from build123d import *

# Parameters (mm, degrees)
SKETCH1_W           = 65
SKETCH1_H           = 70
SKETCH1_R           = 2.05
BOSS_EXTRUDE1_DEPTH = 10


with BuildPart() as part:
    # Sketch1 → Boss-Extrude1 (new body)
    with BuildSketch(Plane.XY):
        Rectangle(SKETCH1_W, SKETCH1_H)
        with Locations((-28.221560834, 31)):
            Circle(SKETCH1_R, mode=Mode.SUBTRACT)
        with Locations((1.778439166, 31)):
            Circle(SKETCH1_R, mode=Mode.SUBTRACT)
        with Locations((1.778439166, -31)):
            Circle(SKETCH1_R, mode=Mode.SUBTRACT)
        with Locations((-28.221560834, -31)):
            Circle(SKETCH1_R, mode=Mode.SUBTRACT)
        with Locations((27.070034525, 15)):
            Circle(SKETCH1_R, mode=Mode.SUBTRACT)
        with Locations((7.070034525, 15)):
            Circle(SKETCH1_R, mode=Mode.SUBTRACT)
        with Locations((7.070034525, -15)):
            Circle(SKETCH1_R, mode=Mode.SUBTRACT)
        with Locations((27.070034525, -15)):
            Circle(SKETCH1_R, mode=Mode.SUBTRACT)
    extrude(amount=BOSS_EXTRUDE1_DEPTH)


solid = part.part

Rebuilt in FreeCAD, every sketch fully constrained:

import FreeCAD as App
import Part
import Sketcher

doc = App.newDocument("Part")
body = doc.addObject("PartDesign::Body", "Body")

sketch1 = doc.addObject("Sketcher::SketchObject", "Sketch")
body.addObject(sketch1)
sketch1.AttachmentSupport = (doc.XY_Plane, [""])
sketch1.MapMode = "FlatFace"
sketch1.addGeometry(Part.LineSegment(App.Vector(-32.5, 35, 0), App.Vector(-32.5, -35, 0)), False)
sketch1.addGeometry(Part.LineSegment(App.Vector(-32.5, -35, 0), App.Vector(32.5, -35, 0)), False)
sketch1.addGeometry(Part.LineSegment(App.Vector(32.5, -35, 0), App.Vector(32.5, 35, 0)), False)
sketch1.addGeometry(Part.LineSegment(App.Vector(32.5, 35, 0), App.Vector(-32.5, 35, 0)), False)
sketch1.addGeometry(Part.Circle(App.Vector(-28.2, -31, 0), App.Vector(0, 0, 1), 2), False)
sketch1.addGeometry(Part.Circle(App.Vector(1.8, -31, 0), App.Vector(0, 0, 1), 2), False)
sketch1.addGeometry(Part.Circle(App.Vector(7.1, -15, 0), App.Vector(0, 0, 1), 2), False)
sketch1.addGeometry(Part.Circle(App.Vector(27.1, -15, 0), App.Vector(0, 0, 1), 2), False)
sketch1.addGeometry(Part.Circle(App.Vector(-28.2, 31, 0), App.Vector(0, 0, 1), 2), False)
sketch1.addGeometry(Part.Circle(App.Vector(7.1, 15, 0), App.Vector(0, 0, 1), 2), False)
sketch1.addGeometry(Part.Circle(App.Vector(27.1, 15, 0), App.Vector(0, 0, 1), 2), False)
sketch1.addGeometry(Part.Circle(App.Vector(1.8, 31, 0), App.Vector(0, 0, 1), 2), False)
sketch1.addConstraint(Sketcher.Constraint("Coincident", 0, 2, 1, 1))
sketch1.addConstraint(Sketcher.Constraint("Coincident", 1, 2, 2, 1))
sketch1.addConstraint(Sketcher.Constraint("Coincident", 2, 2, 3, 1))
sketch1.addConstraint(Sketcher.Constraint("Coincident", 3, 2, 0, 1))
sketch1.addConstraint(Sketcher.Constraint("Vertical", 0))
sketch1.addConstraint(Sketcher.Constraint("Horizontal", 1))
sketch1.addConstraint(Sketcher.Constraint("Vertical", 2))
sketch1.addConstraint(Sketcher.Constraint("Horizontal", 3))
sketch1.addConstraint(Sketcher.Constraint("Equal", 4, 5))
sketch1.addConstraint(Sketcher.Constraint("Equal", 5, 6))
sketch1.addConstraint(Sketcher.Constraint("Equal", 6, 7))
sketch1.addConstraint(Sketcher.Constraint("Equal", 7, 8))
sketch1.addConstraint(Sketcher.Constraint("Equal", 8, 9))
sketch1.addConstraint(Sketcher.Constraint("Equal", 9, 10))
sketch1.addConstraint(Sketcher.Constraint("Equal", 10, 11))
sketch1.addConstraint(Sketcher.Constraint("Symmetric", 0, 2, 2, 2, -1, 1))
sketch1.addConstraint(Sketcher.Constraint("Symmetric", 4, 3, 8, 3, -1))
sketch1.addConstraint(Sketcher.Constraint("Symmetric", 6, 3, 9, 3, -1))
sketch1.addConstraint(Sketcher.Constraint("Symmetric", 7, 3, 10, 3, -1))
sketch1.addConstraint(Sketcher.Constraint("Symmetric", 5, 3, 11, 3, -1))
sketch1.addConstraint(Sketcher.Constraint("Horizontal", 4, 3, 5, 3))
sketch1.addConstraint(Sketcher.Constraint("Horizontal", 6, 3, 7, 3))
sketch1.addConstraint(Sketcher.Constraint("Diameter", 4, 4.1))
sketch1.addConstraint(Sketcher.Constraint("DistanceX", 1, 1, 1, 2, 65.0))
sketch1.addConstraint(Sketcher.Constraint("DistanceY", 0, 2, 0, 1, 70.0))
sketch1.addConstraint(Sketcher.Constraint("DistanceY", 4, 3, -1, 1, 31.0))
sketch1.addConstraint(Sketcher.Constraint("DistanceY", 6, 3, -1, 1, 15.0))
sketch1.addConstraint(Sketcher.Constraint("DistanceX", 4, 3, 5, 3, 30.0))
sketch1.addConstraint(Sketcher.Constraint("DistanceX", 6, 3, 7, 3, 20.0))
sketch1.addConstraint(Sketcher.Constraint("DistanceX", 4, 3, -1, 1, 28.221561))
sketch1.addConstraint(Sketcher.Constraint("DistanceX", -1, 1, 6, 3, 7.070035))
pad1 = doc.addObject("PartDesign::Pad", "Pad")
body.addObject(pad1)
pad1.Profile = sketch1
pad1.Length = 10

doc.recompute()
